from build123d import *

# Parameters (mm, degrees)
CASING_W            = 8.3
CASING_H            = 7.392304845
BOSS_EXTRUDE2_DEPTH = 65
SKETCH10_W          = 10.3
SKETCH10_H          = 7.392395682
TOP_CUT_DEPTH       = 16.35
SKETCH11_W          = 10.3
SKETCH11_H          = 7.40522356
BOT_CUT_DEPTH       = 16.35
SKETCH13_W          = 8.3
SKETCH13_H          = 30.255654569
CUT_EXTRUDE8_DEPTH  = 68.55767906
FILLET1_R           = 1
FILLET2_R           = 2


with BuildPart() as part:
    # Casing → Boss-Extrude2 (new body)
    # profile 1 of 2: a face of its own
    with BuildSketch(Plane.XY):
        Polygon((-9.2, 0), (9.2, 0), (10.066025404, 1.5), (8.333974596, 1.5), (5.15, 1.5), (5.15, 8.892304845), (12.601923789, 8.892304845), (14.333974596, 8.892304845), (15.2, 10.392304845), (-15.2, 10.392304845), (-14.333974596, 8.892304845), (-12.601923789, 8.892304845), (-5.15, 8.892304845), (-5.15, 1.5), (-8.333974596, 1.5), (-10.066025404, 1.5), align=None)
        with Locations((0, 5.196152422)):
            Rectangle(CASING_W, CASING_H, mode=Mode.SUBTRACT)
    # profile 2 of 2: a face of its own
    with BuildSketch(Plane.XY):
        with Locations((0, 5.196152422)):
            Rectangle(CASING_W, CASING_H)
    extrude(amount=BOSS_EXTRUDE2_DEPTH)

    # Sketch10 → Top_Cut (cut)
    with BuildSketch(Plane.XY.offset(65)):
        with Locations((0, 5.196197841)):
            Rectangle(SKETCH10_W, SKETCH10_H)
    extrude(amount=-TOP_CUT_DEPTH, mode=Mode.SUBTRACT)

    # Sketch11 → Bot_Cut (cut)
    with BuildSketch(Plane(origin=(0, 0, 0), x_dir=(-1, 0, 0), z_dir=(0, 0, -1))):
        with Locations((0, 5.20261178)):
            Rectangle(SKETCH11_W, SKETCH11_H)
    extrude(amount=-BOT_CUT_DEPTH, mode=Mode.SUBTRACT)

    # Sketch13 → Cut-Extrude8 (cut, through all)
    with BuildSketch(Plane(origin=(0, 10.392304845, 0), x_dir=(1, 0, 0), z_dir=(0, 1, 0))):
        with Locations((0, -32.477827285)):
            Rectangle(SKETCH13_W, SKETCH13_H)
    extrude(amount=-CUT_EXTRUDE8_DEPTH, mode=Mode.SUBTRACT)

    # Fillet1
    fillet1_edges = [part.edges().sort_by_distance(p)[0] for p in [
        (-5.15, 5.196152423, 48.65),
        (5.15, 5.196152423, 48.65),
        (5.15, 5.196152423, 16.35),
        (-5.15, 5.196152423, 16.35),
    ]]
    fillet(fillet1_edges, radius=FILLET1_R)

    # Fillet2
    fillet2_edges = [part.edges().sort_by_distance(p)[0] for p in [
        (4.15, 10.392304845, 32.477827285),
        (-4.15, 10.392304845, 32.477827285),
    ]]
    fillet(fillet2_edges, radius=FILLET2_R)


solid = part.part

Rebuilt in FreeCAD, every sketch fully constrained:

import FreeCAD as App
import Part
import Sketcher

V = App.Vector
Q = App.Units.Quantity


def edges_at(feature, points):
    """Names of the edges that pass closest to the given points."""
    edges = feature.Shape.Edges
    near = lambda p: min(range(len(edges)), key=lambda i: edges[i].distToShape(Part.Vertex(*p))[0])
    return sorted({f"Edge{near(p) + 1}" for p in points})


def add_polygon(sketch, points):
    """Adds a closed chain of lines whose ends are joined by coincident constraints."""
    first, n = sketch.GeometryCount, len(points)
    for a, b in zip(points, points[1:] + points[:1]):
        sketch.addGeometry(Part.LineSegment(App.Vector(*a, 0), App.Vector(*b, 0)), False)
    for i in range(n):
        sketch.addConstraint(Sketcher.Constraint("Coincident", first + i, 2, first + (i + 1) % n, 1))

doc = App.newDocument("Part")
body = doc.addObject("PartDesign::Body", "Body")

sketch1 = doc.addObject("Sketcher::SketchObject", "Sketch")
body.addObject(sketch1)
sketch1.AttachmentSupport = (doc.XY_Plane, [""])
sketch1.MapMode = "FlatFace"
add_polygon(sketch1, [(-9.2, 0), (9.2, 0), (10.066025, 1.5), (5.15, 1.5), (5.15, 8.892305), (14.333975, 8.892305), (15.2, 10.392305), (-15.2, 10.392305), (-14.333975, 8.892305), (-5.15, 8.892305), (-5.15, 1.5), (-10.066025, 1.5)])
sketch1.addConstraint(Sketcher.Constraint("Horizontal", 0))
sketch1.addConstraint(Sketcher.Constraint("Horizontal", 2))
sketch1.addConstraint(Sketcher.Constraint("Vertical", 3))
sketch1.addConstraint(Sketcher.Constraint("Horizontal", 4))
sketch1.addConstraint(Sketcher.Constraint("Horizontal", 6))
sketch1.addConstraint(Sketcher.Constraint("Horizontal", 8))
sketch1.addConstraint(Sketcher.Constraint("Vertical", 9))
sketch1.addConstraint(Sketcher.Constraint("Horizontal", 10))
sketch1.addConstraint(Sketcher.Constraint("Symmetric", 0, 2, 11, 2, -1, 1))
sketch1.addConstraint(Sketcher.Constraint("Symmetric", 4, 2, 7, 2, -2))
sketch1.addConstraint(Sketcher.Constraint("Symmetric", 2, 2, 9, 2, -2))
sketch1.addConstraint(Sketcher.Constraint("Parallel", 1, 5))
sketch1.addConstraint(Sketcher.Constraint("Parallel", 7, 11))
sketch1.addConstraint(Sketcher.Constraint("Equal", 2, 10))
sketch1.addConstraint(Sketcher.Constraint("Equal", 1, 5))
sketch1.addConstraint(Sketcher.Constraint("Angle", 1, Q("60 deg")))
sketch1.addConstraint(Sketcher.Constraint("DistanceX", 0, 1, 0, 2, Q("18.4 mm")))
sketch1.addConstraint(Sketcher.Constraint("DistanceX", 6, 2, 6, 1, Q("30.4 mm")))
sketch1.addConstraint(Sketcher.Constraint("DistanceY", -1, 1, 1, 2, Q("1.5 mm")))
sketch1.addConstraint(Sketcher.Constraint("DistanceX", 8, 2, 3, 2, Q("10.3 mm")))
sketch1.addConstraint(Sketcher.Constraint("DistanceY", 3, 1, 3, 2, Q("7.392305 mm")))
pad1 = doc.addObject("PartDesign::Pad", "Pad")
body.addObject(pad1)
pad1.Profile = sketch1
pad1.Length = 65

sketch2 = doc.addObject("Sketcher::SketchObject", "Sketch001")
body.addObject(sketch2)
sketch2.AttachmentSupport = (doc.XY_Plane, [""])
sketch2.MapMode = "FlatFace"
sketch2.AttachmentOffset = App.Placement(V(0, 0, 65), App.Rotation())
add_polygon(sketch2, [(-5.15, 8.892396), (-5.15, 1.5), (5.15, 1.5), (5.15, 8.892396)])
sketch2.addConstraint(Sketcher.Constraint("Vertical", 0))
sketch2.addConstraint(Sketcher.Constraint("Horizontal", 1))
sketch2.addConstraint(Sketcher.Constraint("Vertical", 2))
sketch2.addConstraint(Sketcher.Constraint("Horizontal", 3))
sketch2.addConstraint(Sketcher.Constraint("DistanceX", 1, 1, 1, 2, Q("10.3 mm")))
sketch2.addConstraint(Sketcher.Constraint("DistanceY", -1, 1, 0, 2, Q("1.5 mm")))
sketch2.addConstraint(Sketcher.Constraint("DistanceX", 0, 2, -1, 1, Q("5.15 mm")))
sketch2.addConstraint(Sketcher.Constraint("DistanceY", 0, 2, 0, 1, Q("7.392396 mm")))
pocket1 = doc.addObject("PartDesign::Pocket", "Pocket")
body.addObject(pocket1)
pocket1.Profile = sketch2
pocket1.Length = 16.35

sketch3 = doc.addObject("Sketcher::SketchObject", "Sketch002")
body.addObject(sketch3)
sketch3.AttachmentSupport = (doc.XY_Plane, [""])
sketch3.MapMode = "FlatFace"
add_polygon(sketch3, [(5.15, 8.905224), (5.15, 1.5), (-5.15, 1.5), (-5.15, 8.905224)])
sketch3.addConstraint(Sketcher.Constraint("Vertical", 0))
sketch3.addConstraint(Sketcher.Constraint("Horizontal", 1))
sketch3.addConstraint(Sketcher.Constraint("Vertical", 2))
sketch3.addConstraint(Sketcher.Constraint("Horizontal", 3))
sketch3.addConstraint(Sketcher.Constraint("DistanceX", 1, 2, 1, 1, Q("10.3 mm")))
sketch3.addConstraint(Sketcher.Constraint("DistanceY", -1, 1, 0, 2, Q("1.5 mm")))
sketch3.addConstraint(Sketcher.Constraint("DistanceX", -1, 1, 0, 2, Q("5.15 mm")))
sketch3.addConstraint(Sketcher.Constraint("DistanceY", 0, 2, 0, 1, Q("7.405224 mm")))
pocket2 = doc.addObject("PartDesign::Pocket", "Pocket001")
body.addObject(pocket2)
pocket2.Profile = sketch3
pocket2.Length = 16.35
pocket2.Reversed = True

sketch4 = doc.addObject("Sketcher::SketchObject", "Sketch003")
body.addObject(sketch4)
sketch4.AttachmentSupport = (doc.XZ_Plane, [""])
sketch4.MapMode = "FlatFace"
sketch4.AttachmentOffset = App.Placement(V(0, 0, -10.392305), App.Rotation())
add_polygon(sketch4, [(-4.15, 17.35), (-4.15, 47.605655), (4.15, 47.605655), (4.15, 17.35)])
sketch4.addConstraint(Sketcher.Constraint("Vertical", 0))
sketch4.addConstraint(Sketcher.Constraint("Horizontal", 1))
sketch4.addConstraint(Sketcher.Constraint("Vertical", 2))
sketch4.addConstraint(Sketcher.Constraint("Horizontal", 3))
sketch4.addConstraint(Sketcher.Constraint("DistanceX", 1, 1, 1, 2, Q("8.3 mm")))
sketch4.addConstraint(Sketcher.Constraint("DistanceX", 0, 2, -1, 1, Q("4.15 mm")))
sketch4.addConstraint(Sketcher.Constraint("DistanceY", -1, 1, 2, 2, Q("17.35 mm")))
sketch4.addConstraint(Sketcher.Constraint("DistanceY", 0, 1, 0, 2, Q("30.255655 mm")))
pocket3 = doc.addObject("PartDesign::Pocket", "Pocket002")
body.addObject(pocket3)
pocket3.Profile = sketch4
pocket3.Type = "ThroughAll"
pocket3.Reversed = True
doc.recompute()

fillet = doc.addObject("PartDesign::Fillet", "Fillet")
body.addObject(fillet)
fillet.Base = (pocket3, edges_at(pocket3, [
    (-5.15, 5.196, 48.65),
    (5.15, 5.196, 48.65),
    (5.15, 5.196, 16.35),
    (-5.15, 5.196, 16.35),
]))
fillet.Radius = 1
doc.recompute()

fillet2 = doc.addObject("PartDesign::Fillet", "Fillet001")
body.addObject(fillet2)
fillet2.Base = (fillet, edges_at(fillet, [(4.15, 10.392, 32.478), (-4.15, 10.392, 32.478)]))
fillet2.Radius = 2

doc.recompute()
